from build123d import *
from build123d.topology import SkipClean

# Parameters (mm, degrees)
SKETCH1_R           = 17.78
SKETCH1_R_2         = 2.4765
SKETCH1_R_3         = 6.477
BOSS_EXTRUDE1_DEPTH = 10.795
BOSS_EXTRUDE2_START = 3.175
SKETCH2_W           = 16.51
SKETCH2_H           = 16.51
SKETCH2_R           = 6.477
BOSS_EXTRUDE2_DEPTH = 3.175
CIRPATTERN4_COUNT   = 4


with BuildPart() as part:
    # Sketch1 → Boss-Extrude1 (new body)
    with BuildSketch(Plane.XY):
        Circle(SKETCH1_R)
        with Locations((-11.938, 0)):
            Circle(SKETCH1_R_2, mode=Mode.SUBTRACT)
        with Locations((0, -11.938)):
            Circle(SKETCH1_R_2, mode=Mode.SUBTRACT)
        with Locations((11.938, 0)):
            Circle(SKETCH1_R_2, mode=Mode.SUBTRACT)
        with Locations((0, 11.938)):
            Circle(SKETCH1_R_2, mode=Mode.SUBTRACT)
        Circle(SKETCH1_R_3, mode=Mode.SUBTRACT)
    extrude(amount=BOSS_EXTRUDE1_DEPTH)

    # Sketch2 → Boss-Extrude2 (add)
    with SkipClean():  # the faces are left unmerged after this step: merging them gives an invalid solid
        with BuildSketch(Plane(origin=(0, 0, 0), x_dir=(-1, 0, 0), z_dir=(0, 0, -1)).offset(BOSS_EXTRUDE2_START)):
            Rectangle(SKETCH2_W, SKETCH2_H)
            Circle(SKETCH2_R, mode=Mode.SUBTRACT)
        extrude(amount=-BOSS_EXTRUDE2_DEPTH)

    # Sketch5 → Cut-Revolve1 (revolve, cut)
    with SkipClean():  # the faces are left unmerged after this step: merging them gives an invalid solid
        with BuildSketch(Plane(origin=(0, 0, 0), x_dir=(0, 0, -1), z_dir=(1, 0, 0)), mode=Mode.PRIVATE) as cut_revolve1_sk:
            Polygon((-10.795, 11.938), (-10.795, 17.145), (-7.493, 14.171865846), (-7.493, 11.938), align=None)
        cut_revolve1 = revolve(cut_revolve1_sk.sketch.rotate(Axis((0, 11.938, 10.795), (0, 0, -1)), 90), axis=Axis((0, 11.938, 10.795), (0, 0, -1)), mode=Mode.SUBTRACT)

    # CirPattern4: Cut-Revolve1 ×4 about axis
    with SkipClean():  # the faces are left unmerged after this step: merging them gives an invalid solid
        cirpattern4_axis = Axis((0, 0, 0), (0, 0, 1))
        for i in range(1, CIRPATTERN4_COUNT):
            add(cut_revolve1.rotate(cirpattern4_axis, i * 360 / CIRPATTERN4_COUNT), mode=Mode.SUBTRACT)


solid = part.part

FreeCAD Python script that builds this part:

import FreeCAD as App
import Part
import Sketcher
Q = App.Units.Quantity

doc = App.newDocument("Part")
body = doc.addObject("PartDesign::Body", "Body")

sketch1 = body.newObject("Sketcher::SketchObject", "Sketch")
sketch1.AttachmentSupport = (doc.getObject("XY_Plane"), [""])
sketch1.MapMode = "FlatFace"
sketch1.addGeometry(Part.Circle(App.Vector(0, 0, 0), App.Vector(0, 0, 1), 17.8), False)
sketch1.addGeometry(Part.Circle(App.Vector(0, -11.9, 0), App.Vector(0, 0, 1), 2.5), False)
sketch1.addGeometry(Part.Circle(App.Vector(-11.9, 0, 0), App.Vector(0, 0, 1), 2.5), False)
sketch1.addGeometry(Part.Circle(App.Vector(0, 0, 0), App.Vector(0, 0, 1), 6.5), False)
sketch1.addGeometry(Part.Circle(App.Vector(11.9, 0, 0), App.Vector(0, 0, 1), 2.5), False)
sketch1.addGeometry(Part.Circle(App.Vector(0, 11.9, 0), App.Vector(0, 0, 1), 2.5), False)
sketch1.addConstraint(Sketcher.Constraint("Coincident", 0, 3, -1, 1))
sketch1.addConstraint(Sketcher.Constraint("Coincident", 3, 3, -1, 1))
sketch1.addConstraint(Sketcher.Constraint("Equal", 1, 2))
sketch1.addConstraint(Sketcher.Constraint("Equal", 2, 4))
sketch1.addConstraint(Sketcher.Constraint("Equal", 4, 5))
sketch1.addConstraint(Sketcher.Constraint("Symmetric", 2, 3, 4, 3, -1, 1))
sketch1.addConstraint(Sketcher.Constraint("Symmetric", 1, 3, 5, 3, -1, 1))
sketch1.addConstraint(Sketcher.Constraint("PointOnObject", 1, 3, -2))
sketch1.addConstraint(Sketcher.Constraint("PointOnObject", 2, 3, -1))
sketch1.addConstraint(Sketcher.Constraint("Diameter", 0, Q("1.4 in")))
sketch1.addConstraint(Sketcher.Constraint("Diameter", 3, Q("0.51 in")))
sketch1.addConstraint(Sketcher.Constraint("Diameter", 1, Q("0.195 in")))
sketch1.addConstraint(Sketcher.Constraint("DistanceY", 1, 3, -1, 1, Q("0.47 in")))
sketch1.addConstraint(Sketcher.Constraint("DistanceX", 2, 3, -1, 1, Q("0.47 in")))
pad1 = body.newObject("PartDesign::Pad", "Pad")
pad1.Profile = sketch1
pad1.Length = Q("0.425 in")

sketch2 = body.newObject("Sketcher::SketchObject", "Sketch001")
sketch2.AttachmentSupport = (doc.getObject("XY_Plane"), [""])
sketch2.MapMode = "FlatFace"
sketch2.AttachmentOffset = App.Placement(App.Vector(0, 0, -0.125 * 25.4), App.Rotation())
sketch2.addGeometry(Part.LineSegment(App.Vector(8, 8, 0), App.Vector(8, -8, 0)), False)
sketch2.addGeometry(Part.LineSegment(App.Vector(8, -8, 0), App.Vector(-8, -8, 0)), False)
sketch2.addGeometry(Part.LineSegment(App.Vector(-8, -8, 0), App.Vector(-8, 8, 0)), False)
sketch2.addGeometry(Part.LineSegment(App.Vector(-8, 8, 0), App.Vector(8, 8, 0)), False)
sketch2.addGeometry(Part.Circle(App.Vector(0, 0, 0), App.Vector(0, 0, 1), 6), False)
sketch2.addConstraint(Sketcher.Constraint("Coincident", 0, 2, 1, 1))
sketch2.addConstraint(Sketcher.Constraint("Coincident", 1, 2, 2, 1))
sketch2.addConstraint(Sketcher.Constraint("Coincident", 2, 2, 3, 1))
sketch2.addConstraint(Sketcher.Constraint("Coincident", 3, 2, 0, 1))
sketch2.addConstraint(Sketcher.Constraint("Vertical", 0))
sketch2.addConstraint(Sketcher.Constraint("Horizontal", 1))
sketch2.addConstraint(Sketcher.Constraint("Vertical", 2))
sketch2.addConstraint(Sketcher.Constraint("Horizontal", 3))
sketch2.addConstraint(Sketcher.Constraint("Coincident", 4, 3, -1, 1))
sketch2.addConstraint(Sketcher.Constraint("Symmetric", 0, 2, 2, 2, -1, 1))
sketch2.addConstraint(Sketcher.Constraint("Equal", 3, 0))
sketch2.addConstraint(Sketcher.Constraint("Diameter", 4, Q("0.51 in")))
sketch2.addConstraint(Sketcher.Constraint("DistanceX", 1, 2, 1, 1, Q("0.65 in")))
pad2 = body.newObject("PartDesign::Pad", "Pad001")
pad2.Profile = sketch2
pad2.Length = Q("0.125 in")

sketch3 = body.newObject("Sketcher::SketchObject", "Sketch002")
sketch3.AttachmentSupport = (doc.getObject("YZ_Plane"), [""])
sketch3.MapMode = "FlatFace"
sketch3.addGeometry(Part.LineSegment(App.Vector(17.1, 10.8, 0), App.Vector(11.9, 10.8, 0)), False)
sketch3.addGeometry(Part.LineSegment(App.Vector(11.9, 10.8, 0), App.Vector(11.9, 7.5, 0)), False)
sketch3.addGeometry(Part.LineSegment(App.Vector(11.9, 7.5, 0), App.Vector(14.2, 7.5, 0)), False)
sketch3.addGeometry(Part.LineSegment(App.Vector(14.2, 7.5, 0), App.Vector(17.1, 10.8, 0)), False)
sketch3.addGeometry(Part.LineSegment(App.Vector(11.9, 10.8, 0), App.Vector(11.9, 7.5, 0)), True)
sketch3.addConstraint(Sketcher.Constraint("Coincident", 0, 2, 1, 1))
sketch3.addConstraint(Sketcher.Constraint("Coincident", 1, 2, 2, 1))
sketch3.addConstraint(Sketcher.Constraint("Coincident", 2, 2, 3, 1))
sketch3.addConstraint(Sketcher.Constraint("Coincident", 3, 2, 0, 1))
sketch3.addConstraint(Sketcher.Constraint("Horizontal", 0))
sketch3.addConstraint(Sketcher.Constraint("Vertical", 1))
sketch3.addConstraint(Sketcher.Constraint("Horizontal", 2))
sketch3.addConstraint(Sketcher.Constraint("Vertical", 4))
sketch3.addConstraint(Sketcher.Constraint("Coincident", 4, 1, 0, 2))
sketch3.addConstraint(Sketcher.Constraint("Horizontal", 2, 2, 4, 2))
sketch3.addConstraint(Sketcher.Constraint("Angle", 3, Q("48 deg")))
sketch3.addConstraint(Sketcher.Constraint("DistanceY", 1, 2, 1, 1, Q("0.13 in")))
sketch3.addConstraint(Sketcher.Constraint("DistanceX", 0, 2, 0, 1, Q("0.205 in")))
sketch3.addConstraint(Sketcher.Constraint("DistanceX", -1, 1, 0, 2, Q("0.47 in")))
sketch3.addConstraint(Sketcher.Constraint("DistanceY", -1, 1, 0, 2, Q("0.425 in")))
groove = body.newObject("PartDesign::Groove", "Groove")
groove.Profile = sketch3
groove.ReferenceAxis = (sketch3, ["Axis0"])
groove.Angle = 360
doc.recompute()

polarpattern = body.newObject("PartDesign::PolarPattern", "PolarPattern")
polarpattern.Originals = [groove]
polarpattern.Axis = (doc.getObject("Z_Axis"), [""])
polarpattern.Angle = 360
polarpattern.Occurrences = 4
body.Tip = polarpattern

doc.recompute()
